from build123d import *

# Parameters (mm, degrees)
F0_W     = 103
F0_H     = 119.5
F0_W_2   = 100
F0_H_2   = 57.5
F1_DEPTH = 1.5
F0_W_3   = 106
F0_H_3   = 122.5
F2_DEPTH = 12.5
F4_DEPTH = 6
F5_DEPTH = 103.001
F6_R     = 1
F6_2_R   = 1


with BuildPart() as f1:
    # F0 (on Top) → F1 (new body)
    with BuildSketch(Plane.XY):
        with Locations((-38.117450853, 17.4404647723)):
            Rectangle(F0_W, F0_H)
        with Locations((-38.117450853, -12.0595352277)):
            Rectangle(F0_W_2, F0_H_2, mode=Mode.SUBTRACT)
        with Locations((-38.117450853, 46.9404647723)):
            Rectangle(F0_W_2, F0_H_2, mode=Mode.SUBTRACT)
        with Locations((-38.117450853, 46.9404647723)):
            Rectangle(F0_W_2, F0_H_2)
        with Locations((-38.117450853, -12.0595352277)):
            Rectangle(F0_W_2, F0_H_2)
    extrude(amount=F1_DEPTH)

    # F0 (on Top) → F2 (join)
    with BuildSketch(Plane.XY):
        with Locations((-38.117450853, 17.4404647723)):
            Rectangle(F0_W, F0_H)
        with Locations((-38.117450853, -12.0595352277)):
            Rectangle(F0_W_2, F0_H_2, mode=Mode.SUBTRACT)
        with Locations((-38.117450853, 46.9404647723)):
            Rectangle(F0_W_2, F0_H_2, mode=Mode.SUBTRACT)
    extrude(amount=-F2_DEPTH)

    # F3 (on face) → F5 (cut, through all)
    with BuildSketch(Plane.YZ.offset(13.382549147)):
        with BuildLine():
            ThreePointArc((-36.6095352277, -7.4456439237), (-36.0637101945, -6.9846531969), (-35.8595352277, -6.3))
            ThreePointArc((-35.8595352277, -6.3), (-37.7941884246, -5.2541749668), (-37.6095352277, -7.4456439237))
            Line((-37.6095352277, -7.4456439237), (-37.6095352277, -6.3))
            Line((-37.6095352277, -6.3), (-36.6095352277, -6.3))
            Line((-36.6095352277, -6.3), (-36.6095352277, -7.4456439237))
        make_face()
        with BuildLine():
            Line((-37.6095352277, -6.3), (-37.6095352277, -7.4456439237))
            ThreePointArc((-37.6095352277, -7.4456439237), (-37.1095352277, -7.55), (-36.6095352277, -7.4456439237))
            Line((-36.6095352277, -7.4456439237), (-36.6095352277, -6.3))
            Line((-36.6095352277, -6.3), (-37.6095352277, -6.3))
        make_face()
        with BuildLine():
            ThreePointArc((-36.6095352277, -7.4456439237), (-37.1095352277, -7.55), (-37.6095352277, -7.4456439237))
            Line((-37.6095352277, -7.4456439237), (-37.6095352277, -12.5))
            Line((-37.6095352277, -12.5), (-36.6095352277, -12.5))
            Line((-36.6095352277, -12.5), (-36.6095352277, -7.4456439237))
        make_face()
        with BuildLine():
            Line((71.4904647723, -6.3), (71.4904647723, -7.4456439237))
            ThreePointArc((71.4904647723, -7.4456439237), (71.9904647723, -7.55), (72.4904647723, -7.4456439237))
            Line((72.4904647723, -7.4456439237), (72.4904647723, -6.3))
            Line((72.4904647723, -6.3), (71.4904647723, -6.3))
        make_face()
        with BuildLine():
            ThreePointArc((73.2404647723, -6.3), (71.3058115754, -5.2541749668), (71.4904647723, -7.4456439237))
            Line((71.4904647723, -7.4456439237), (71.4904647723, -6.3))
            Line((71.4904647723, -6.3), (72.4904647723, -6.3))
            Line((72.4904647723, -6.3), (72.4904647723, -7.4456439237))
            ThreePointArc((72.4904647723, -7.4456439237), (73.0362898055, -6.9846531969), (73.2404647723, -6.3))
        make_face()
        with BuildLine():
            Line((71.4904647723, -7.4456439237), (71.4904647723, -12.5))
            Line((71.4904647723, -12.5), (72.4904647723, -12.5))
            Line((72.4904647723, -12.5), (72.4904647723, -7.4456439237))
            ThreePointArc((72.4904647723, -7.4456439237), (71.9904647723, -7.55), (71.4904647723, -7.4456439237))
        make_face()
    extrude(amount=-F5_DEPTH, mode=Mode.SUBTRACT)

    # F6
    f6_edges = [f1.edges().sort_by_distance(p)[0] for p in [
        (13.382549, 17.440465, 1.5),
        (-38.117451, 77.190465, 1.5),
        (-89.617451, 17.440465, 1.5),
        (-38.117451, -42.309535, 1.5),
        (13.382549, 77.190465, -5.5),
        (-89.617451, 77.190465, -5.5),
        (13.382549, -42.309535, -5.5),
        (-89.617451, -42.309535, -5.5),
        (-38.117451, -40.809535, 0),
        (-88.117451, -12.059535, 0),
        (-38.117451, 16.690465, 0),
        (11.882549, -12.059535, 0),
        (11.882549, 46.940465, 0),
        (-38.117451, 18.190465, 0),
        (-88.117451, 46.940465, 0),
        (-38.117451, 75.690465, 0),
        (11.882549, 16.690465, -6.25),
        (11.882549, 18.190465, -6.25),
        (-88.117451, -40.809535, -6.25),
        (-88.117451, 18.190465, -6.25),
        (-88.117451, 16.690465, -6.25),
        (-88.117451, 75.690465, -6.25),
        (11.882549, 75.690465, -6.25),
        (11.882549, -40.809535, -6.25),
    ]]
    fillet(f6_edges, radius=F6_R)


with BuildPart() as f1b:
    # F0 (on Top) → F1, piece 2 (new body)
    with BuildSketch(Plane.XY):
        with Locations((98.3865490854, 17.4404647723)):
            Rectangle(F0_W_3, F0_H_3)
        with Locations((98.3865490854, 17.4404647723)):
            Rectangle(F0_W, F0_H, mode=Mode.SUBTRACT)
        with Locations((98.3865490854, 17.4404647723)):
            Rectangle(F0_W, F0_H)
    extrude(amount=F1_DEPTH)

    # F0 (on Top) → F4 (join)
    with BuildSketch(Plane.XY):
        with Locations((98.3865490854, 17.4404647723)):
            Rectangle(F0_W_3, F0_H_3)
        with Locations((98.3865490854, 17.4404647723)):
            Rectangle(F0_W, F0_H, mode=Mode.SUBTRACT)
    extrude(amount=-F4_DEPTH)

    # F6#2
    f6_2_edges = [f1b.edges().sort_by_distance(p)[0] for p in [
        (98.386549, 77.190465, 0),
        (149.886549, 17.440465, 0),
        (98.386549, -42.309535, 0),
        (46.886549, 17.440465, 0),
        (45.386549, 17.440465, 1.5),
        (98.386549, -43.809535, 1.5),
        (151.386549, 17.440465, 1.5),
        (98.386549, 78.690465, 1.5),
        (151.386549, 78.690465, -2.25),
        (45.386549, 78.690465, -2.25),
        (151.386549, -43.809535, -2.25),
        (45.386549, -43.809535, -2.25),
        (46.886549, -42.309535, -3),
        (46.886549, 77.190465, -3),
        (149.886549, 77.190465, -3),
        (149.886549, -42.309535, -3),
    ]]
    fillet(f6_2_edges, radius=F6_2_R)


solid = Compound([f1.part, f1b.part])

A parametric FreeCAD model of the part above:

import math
import FreeCAD as App
import Part
import Sketcher
Q = App.Units.Quantity


def edges_at(feature, points):
    """Names of the edges that pass closest to the given points."""
    edges = feature.Shape.Edges
    near = lambda p: min(range(len(edges)), key=lambda i: edges[i].distToShape(Part.Vertex(*p))[0])
    return sorted({f"Edge{near(p) + 1}" for p in points})


def add_polygon(sketch, points):
    """Adds a closed chain of lines whose ends are joined by coincident constraints."""
    first, n = sketch.GeometryCount, len(points)
    for a, b in zip(points, points[1:] + points[:1]):
        sketch.addGeometry(Part.LineSegment(App.Vector(*a, 0), App.Vector(*b, 0)), False)
    for i in range(n):
        sketch.addConstraint(Sketcher.Constraint("Coincident", first + i, 2, first + (i + 1) % n, 1))

doc = App.newDocument("Part")
body = doc.addObject("PartDesign::Body", "Body")

# Sketch on XY plane
sketch1 = body.newObject("Sketcher::SketchObject", "Sketch")
sketch1.AttachmentSupport = (doc.getObject("XY_Plane"), [""])
sketch1.MapMode = "FlatFace"
add_polygon(sketch1, [(-90, 77), (-90, -42), (13, -42), (13, 77)])  # lines 0-3
sketch1.addConstraint([
    Sketcher.Constraint("Vertical", 0),
    Sketcher.Constraint("Horizontal", 1),
    Sketcher.Constraint("Vertical", 2),
    Sketcher.Constraint("Horizontal", 3),
    Sketcher.Constraint("DistanceX", 1, 1, 1, 2, Q("103 mm")),
    Sketcher.Constraint("DistanceY", 0, 2, 0, 1, Q("119.5 mm")),
    Sketcher.Constraint("DistanceX", 0, 2, -1, 1, Q("89.617451 mm")),
    Sketcher.Constraint("DistanceY", 0, 2, -1, 1, Q("42.309535 mm")),
])
pad1 = body.newObject("PartDesign::Pad", "Pad")
pad1.Profile = sketch1
pad1.Length = 1.5

# Sketch on XY plane
sketch2 = body.newObject("Sketcher::SketchObject", "Sketch001")
sketch2.AttachmentSupport = (doc.getObject("XY_Plane"), [""])
sketch2.MapMode = "FlatFace"
add_polygon(sketch2, [(-90, 77), (-90, -42), (13, -42), (13, 77)])  # lines 0-3
add_polygon(sketch2, [(12, -41), (-88, -41), (-88, 17), (12, 17)])  # lines 4-7
add_polygon(sketch2, [(12, 18), (-88, 18), (-88, 76), (12, 76)])  # lines 8-11
sketch2.addConstraint([
    Sketcher.Constraint("Vertical", 0),
    Sketcher.Constraint("Horizontal", 1),
    Sketcher.Constraint("Vertical", 2),
    Sketcher.Constraint("Horizontal", 3),
    Sketcher.Constraint("Horizontal", 4),
    Sketcher.Constraint("Vertical", 5),
    Sketcher.Constraint("Horizontal", 6),
    Sketcher.Constraint("Vertical", 7),
    Sketcher.Constraint("Horizontal", 8),
    Sketcher.Constraint("Vertical", 9),
    Sketcher.Constraint("Horizontal", 10),
    Sketcher.Constraint("Vertical", 11),
    Sketcher.Constraint("Vertical", 5, 2, 8, 2),
    Sketcher.Constraint("Vertical", 7, 2, 10, 2),
    Sketcher.Constraint("Equal", 7, 9),
    Sketcher.Constraint("DistanceX", 1, 1, 1, 2, Q("103 mm")),
    Sketcher.Constraint("DistanceX", 4, 2, 4, 1, Q("100 mm")),
    Sketcher.Constraint("DistanceY", 0, 2, 0, 1, Q("119.5 mm")),
    Sketcher.Constraint("DistanceY", 5, 1, 5, 2, Q("57.5 mm")),
    Sketcher.Constraint("DistanceY", 4, 2, 3, 2, Q("118 mm")),
    Sketcher.Constraint("DistanceY", 4, 2, 8, 2, Q("59 mm")),
    Sketcher.Constraint("DistanceX", 0, 2, 4, 2, Q("1.5 mm")),
    Sketcher.Constraint("DistanceX", 0, 2, -1, 1, Q("89.617451 mm")),
    Sketcher.Constraint("DistanceY", 0, 2, -1, 1, Q("42.309535 mm")),
])
pad2 = body.newObject("PartDesign::Pad", "Pad001")
pad2.Profile = sketch2
pad2.Length = 12.5
pad2.Reversed = True

# Sketch on YZ plane
sketch3 = body.newObject("Sketcher::SketchObject", "Sketch002")
sketch3.AttachmentSupport = (doc.getObject("YZ_Plane"), [""])
sketch3.MapMode = "FlatFace"
sketch3.AttachmentOffset = App.Placement(App.Vector(0, 0, 13.382549), App.Rotation())
sketch3.addGeometry([
    Part.ArcOfCircle(Part.Circle(App.Vector(-37.1, -6.3, 0), App.Vector(0, 0, 1), 1.2), math.radians(-66), math.radians(0)),  # 0
    Part.ArcOfCircle(Part.Circle(App.Vector(-37.1, -6.3, 0), App.Vector(0, 0, 1), 1.2), math.radians(0), math.radians(246)),  # 1
    Part.LineSegment(App.Vector(-37.6, -7.4, 0), App.Vector(-37.6, -12.5, 0)),  # 2
    Part.LineSegment(App.Vector(-37.6, -12.5, 0), App.Vector(-36.6, -12.5, 0)),  # 3
    Part.LineSegment(App.Vector(-36.6, -12.5, 0), App.Vector(-36.6, -7.4, 0)),  # 4
    Part.ArcOfCircle(Part.Circle(App.Vector(72, -6.3, 0), App.Vector(0, 0, 1), 1.2), math.radians(-66), math.radians(0)),  # 5
    Part.ArcOfCircle(Part.Circle(App.Vector(72, -6.3, 0), App.Vector(0, 0, 1), 1.2), math.radians(0), math.radians(246)),  # 6
    Part.LineSegment(App.Vector(71.5, -7.4, 0), App.Vector(71.5, -12.5, 0)),  # 7
    Part.LineSegment(App.Vector(71.5, -12.5, 0), App.Vector(72.5, -12.5, 0)),  # 8
    Part.LineSegment(App.Vector(72.5, -12.5, 0), App.Vector(72.5, -7.4, 0)),  # 9
], False)
sketch3.addConstraint([
    Sketcher.Constraint("Tangent", 0, 2, 1, 1),
    Sketcher.Constraint("Coincident", 1, 2, 2, 1),
    Sketcher.Constraint("Coincident", 2, 2, 3, 1),
    Sketcher.Constraint("Coincident", 3, 2, 4, 1),
    Sketcher.Constraint("Coincident", 4, 2, 0, 1),
    Sketcher.Constraint("Tangent", 5, 2, 6, 1),
    Sketcher.Constraint("Coincident", 6, 2, 7, 1),
    Sketcher.Constraint("Coincident", 7, 2, 8, 1),
    Sketcher.Constraint("Coincident", 8, 2, 9, 1),
    Sketcher.Constraint("Coincident", 9, 2, 5, 1),
    Sketcher.Constraint("Vertical", 2),
    Sketcher.Constraint("Horizontal", 3),
    Sketcher.Constraint("Vertical", 4),
    Sketcher.Constraint("Vertical", 7),
    Sketcher.Constraint("Horizontal", 8),
    Sketcher.Constraint("Vertical", 9),
    Sketcher.Constraint("Equal", 0, 1),
    Sketcher.Constraint("Equal", 1, 5),
    Sketcher.Constraint("Equal", 5, 6),
    Sketcher.Constraint("Horizontal", 1, 3, 5, 3),
    Sketcher.Constraint("Horizontal", 6, 3, 0, 2),
    Sketcher.Constraint("Horizontal", 1, 2, 4, 2),
    Sketcher.Constraint("Horizontal", 0, 2, 5, 2),
    Sketcher.Constraint("Horizontal", 4, 2, 6, 2),
    Sketcher.Constraint("Horizontal", 3, 2, 7, 2),
    Sketcher.Constraint("Horizontal", 6, 2, 9, 2),
    Sketcher.Constraint("DistanceX", 3, 1, 3, 2, Q("1 mm")),
    Sketcher.Constraint("Radius", 0, Q("1.25 mm")),
    Sketcher.Constraint("DistanceY", 0, 3, -1, 1, Q("6.3 mm")),
    Sketcher.Constraint("DistanceY", 2, 2, -1, 1, Q("12.5 mm")),
    Sketcher.Constraint("DistanceX", 0, 3, 5, 3, Q("109.1 mm")),
    Sketcher.Constraint("DistanceX", 0, 3, -1, 1, Q("37.109535 mm")),
])
pocket1 = body.newObject("PartDesign::Pocket", "Pocket")
pocket1.Profile = sketch3
pocket1.Type = "ThroughAll"
doc.recompute()

fillet = body.newObject("PartDesign::Fillet", "Fillet")
fillet.Base = (pocket1, edges_at(pocket1, [
    (13.383, 17.44, 1.5),
    (-38.117, 77.19, 1.5),
    (-89.617, 17.44, 1.5),
    (-38.117, -42.31, 1.5),
    (13.383, 77.19, -5.5),
    (-89.617, 77.19, -5.5),
    (13.383, -42.31, -5.5),
    (-89.617, -42.31, -5.5),
    (-38.117, -40.81, 0),
    (-88.117, -12.06, 0),
    (-38.117, 16.69, 0),
    (11.883, -12.06, 0),
    (11.883, 46.94, 0),
    (-38.117, 18.19, 0),
    (-88.117, 46.94, 0),
    (-38.117, 75.69, 0),
    (11.883, 16.69, -6.25),
    (11.883, 18.19, -6.25),
    (-88.117, -40.81, -6.25),
    (-88.117, 18.19, -6.25),
    (-88.117, 16.69, -6.25),
    (-88.117, 75.69, -6.25),
    (11.883, 75.69, -6.25),
    (11.883, -40.81, -6.25),
]))
fillet.Radius = 1
body2 = doc.addObject("PartDesign::Body", "Body001")

# Sketch on XY plane
sketch4 = body2.newObject("Sketcher::SketchObject", "Sketch003")
sketch4.AttachmentSupport = (doc.getObject("XY_Plane001"), [""])
sketch4.MapMode = "FlatFace"
add_polygon(sketch4, [(45, 79), (45, -44), (151, -44), (151, 79)])  # lines 0-3
sketch4.addConstraint([
    Sketcher.Constraint("Vertical", 0),
    Sketcher.Constraint("Horizontal", 1),
    Sketcher.Constraint("Vertical", 2),
    Sketcher.Constraint("Horizontal", 3),
    Sketcher.Constraint("DistanceX", 1, 1, 1, 2, Q("106 mm")),
    Sketcher.Constraint("DistanceY", 0, 2, 0, 1, Q("122.5 mm")),
    Sketcher.Constraint("DistanceX", -1, 1, 0, 2, Q("45.386549 mm")),
    Sketcher.Constraint("DistanceY", 0, 2, -1, 1, Q("43.809535 mm")),
])
pad3 = body2.newObject("PartDesign::Pad", "Pad002")
pad3.Profile = sketch4
pad3.Length = 1.5

# Sketch on XY plane
sketch5 = body2.newObject("Sketcher::SketchObject", "Sketch004")
sketch5.AttachmentSupport = (doc.getObject("XY_Plane001"), [""])
sketch5.MapMode = "FlatFace"
add_polygon(sketch5, [(45, 79), (45, -44), (151, -44), (151, 79)])  # lines 0-3
add_polygon(sketch5, [(150, -42), (47, -42), (47, 77), (150, 77)])  # lines 4-7
sketch5.addConstraint([
    Sketcher.Constraint("Vertical", 0),
    Sketcher.Constraint("Horizontal", 1),
    Sketcher.Constraint("Vertical", 2),
    Sketcher.Constraint("Horizontal", 3),
    Sketcher.Constraint("Horizontal", 4),
    Sketcher.Constraint("Vertical", 5),
    Sketcher.Constraint("Horizontal", 6),
    Sketcher.Constraint("Vertical", 7),
    Sketcher.Constraint("DistanceX", 1, 1, 1, 2, Q("106 mm")),
    Sketcher.Constraint("DistanceX", 4, 2, 4, 1, Q("103 mm")),
    Sketcher.Constraint("DistanceY", 0, 2, 0, 1, Q("122.5 mm")),
    Sketcher.Constraint("DistanceY", 5, 1, 5, 2, Q("119.5 mm")),
    Sketcher.Constraint("DistanceY", 4, 2, 3, 2, Q("121 mm")),
    Sketcher.Constraint("DistanceX", 0, 2, 4, 2, Q("1.5 mm")),
    Sketcher.Constraint("DistanceX", -1, 1, 0, 2, Q("45.386549 mm")),
    Sketcher.Constraint("DistanceY", 0, 2, -1, 1, Q("43.809535 mm")),
])
pad4 = body2.newObject("PartDesign::Pad", "Pad003")
pad4.Profile = sketch5
pad4.Length = 6
pad4.Reversed = True
doc.recompute()

fillet2 = body2.newObject("PartDesign::Fillet", "Fillet001")
fillet2.Base = (pad4, edges_at(pad4, [
    (98.387, 77.19, 0),
    (149.887, 17.44, 0),
    (98.387, -42.31, 0),
    (46.887, 17.44, 0),
    (45.387, 17.44, 1.5),
    (98.387, -43.81, 1.5),
    (151.387, 17.44, 1.5),
    (98.387, 78.69, 1.5),
    (151.387, 78.69, -2.25),
    (45.387, 78.69, -2.25),
    (151.387, -43.81, -2.25),
    (45.387, -43.81, -2.25),
    (46.887, -42.31, -3),
    (46.887, 77.19, -3),
    (149.887, 77.19, -3),
    (149.887, -42.31, -3),
]))
fillet2.Radius = 1

doc.recompute()
